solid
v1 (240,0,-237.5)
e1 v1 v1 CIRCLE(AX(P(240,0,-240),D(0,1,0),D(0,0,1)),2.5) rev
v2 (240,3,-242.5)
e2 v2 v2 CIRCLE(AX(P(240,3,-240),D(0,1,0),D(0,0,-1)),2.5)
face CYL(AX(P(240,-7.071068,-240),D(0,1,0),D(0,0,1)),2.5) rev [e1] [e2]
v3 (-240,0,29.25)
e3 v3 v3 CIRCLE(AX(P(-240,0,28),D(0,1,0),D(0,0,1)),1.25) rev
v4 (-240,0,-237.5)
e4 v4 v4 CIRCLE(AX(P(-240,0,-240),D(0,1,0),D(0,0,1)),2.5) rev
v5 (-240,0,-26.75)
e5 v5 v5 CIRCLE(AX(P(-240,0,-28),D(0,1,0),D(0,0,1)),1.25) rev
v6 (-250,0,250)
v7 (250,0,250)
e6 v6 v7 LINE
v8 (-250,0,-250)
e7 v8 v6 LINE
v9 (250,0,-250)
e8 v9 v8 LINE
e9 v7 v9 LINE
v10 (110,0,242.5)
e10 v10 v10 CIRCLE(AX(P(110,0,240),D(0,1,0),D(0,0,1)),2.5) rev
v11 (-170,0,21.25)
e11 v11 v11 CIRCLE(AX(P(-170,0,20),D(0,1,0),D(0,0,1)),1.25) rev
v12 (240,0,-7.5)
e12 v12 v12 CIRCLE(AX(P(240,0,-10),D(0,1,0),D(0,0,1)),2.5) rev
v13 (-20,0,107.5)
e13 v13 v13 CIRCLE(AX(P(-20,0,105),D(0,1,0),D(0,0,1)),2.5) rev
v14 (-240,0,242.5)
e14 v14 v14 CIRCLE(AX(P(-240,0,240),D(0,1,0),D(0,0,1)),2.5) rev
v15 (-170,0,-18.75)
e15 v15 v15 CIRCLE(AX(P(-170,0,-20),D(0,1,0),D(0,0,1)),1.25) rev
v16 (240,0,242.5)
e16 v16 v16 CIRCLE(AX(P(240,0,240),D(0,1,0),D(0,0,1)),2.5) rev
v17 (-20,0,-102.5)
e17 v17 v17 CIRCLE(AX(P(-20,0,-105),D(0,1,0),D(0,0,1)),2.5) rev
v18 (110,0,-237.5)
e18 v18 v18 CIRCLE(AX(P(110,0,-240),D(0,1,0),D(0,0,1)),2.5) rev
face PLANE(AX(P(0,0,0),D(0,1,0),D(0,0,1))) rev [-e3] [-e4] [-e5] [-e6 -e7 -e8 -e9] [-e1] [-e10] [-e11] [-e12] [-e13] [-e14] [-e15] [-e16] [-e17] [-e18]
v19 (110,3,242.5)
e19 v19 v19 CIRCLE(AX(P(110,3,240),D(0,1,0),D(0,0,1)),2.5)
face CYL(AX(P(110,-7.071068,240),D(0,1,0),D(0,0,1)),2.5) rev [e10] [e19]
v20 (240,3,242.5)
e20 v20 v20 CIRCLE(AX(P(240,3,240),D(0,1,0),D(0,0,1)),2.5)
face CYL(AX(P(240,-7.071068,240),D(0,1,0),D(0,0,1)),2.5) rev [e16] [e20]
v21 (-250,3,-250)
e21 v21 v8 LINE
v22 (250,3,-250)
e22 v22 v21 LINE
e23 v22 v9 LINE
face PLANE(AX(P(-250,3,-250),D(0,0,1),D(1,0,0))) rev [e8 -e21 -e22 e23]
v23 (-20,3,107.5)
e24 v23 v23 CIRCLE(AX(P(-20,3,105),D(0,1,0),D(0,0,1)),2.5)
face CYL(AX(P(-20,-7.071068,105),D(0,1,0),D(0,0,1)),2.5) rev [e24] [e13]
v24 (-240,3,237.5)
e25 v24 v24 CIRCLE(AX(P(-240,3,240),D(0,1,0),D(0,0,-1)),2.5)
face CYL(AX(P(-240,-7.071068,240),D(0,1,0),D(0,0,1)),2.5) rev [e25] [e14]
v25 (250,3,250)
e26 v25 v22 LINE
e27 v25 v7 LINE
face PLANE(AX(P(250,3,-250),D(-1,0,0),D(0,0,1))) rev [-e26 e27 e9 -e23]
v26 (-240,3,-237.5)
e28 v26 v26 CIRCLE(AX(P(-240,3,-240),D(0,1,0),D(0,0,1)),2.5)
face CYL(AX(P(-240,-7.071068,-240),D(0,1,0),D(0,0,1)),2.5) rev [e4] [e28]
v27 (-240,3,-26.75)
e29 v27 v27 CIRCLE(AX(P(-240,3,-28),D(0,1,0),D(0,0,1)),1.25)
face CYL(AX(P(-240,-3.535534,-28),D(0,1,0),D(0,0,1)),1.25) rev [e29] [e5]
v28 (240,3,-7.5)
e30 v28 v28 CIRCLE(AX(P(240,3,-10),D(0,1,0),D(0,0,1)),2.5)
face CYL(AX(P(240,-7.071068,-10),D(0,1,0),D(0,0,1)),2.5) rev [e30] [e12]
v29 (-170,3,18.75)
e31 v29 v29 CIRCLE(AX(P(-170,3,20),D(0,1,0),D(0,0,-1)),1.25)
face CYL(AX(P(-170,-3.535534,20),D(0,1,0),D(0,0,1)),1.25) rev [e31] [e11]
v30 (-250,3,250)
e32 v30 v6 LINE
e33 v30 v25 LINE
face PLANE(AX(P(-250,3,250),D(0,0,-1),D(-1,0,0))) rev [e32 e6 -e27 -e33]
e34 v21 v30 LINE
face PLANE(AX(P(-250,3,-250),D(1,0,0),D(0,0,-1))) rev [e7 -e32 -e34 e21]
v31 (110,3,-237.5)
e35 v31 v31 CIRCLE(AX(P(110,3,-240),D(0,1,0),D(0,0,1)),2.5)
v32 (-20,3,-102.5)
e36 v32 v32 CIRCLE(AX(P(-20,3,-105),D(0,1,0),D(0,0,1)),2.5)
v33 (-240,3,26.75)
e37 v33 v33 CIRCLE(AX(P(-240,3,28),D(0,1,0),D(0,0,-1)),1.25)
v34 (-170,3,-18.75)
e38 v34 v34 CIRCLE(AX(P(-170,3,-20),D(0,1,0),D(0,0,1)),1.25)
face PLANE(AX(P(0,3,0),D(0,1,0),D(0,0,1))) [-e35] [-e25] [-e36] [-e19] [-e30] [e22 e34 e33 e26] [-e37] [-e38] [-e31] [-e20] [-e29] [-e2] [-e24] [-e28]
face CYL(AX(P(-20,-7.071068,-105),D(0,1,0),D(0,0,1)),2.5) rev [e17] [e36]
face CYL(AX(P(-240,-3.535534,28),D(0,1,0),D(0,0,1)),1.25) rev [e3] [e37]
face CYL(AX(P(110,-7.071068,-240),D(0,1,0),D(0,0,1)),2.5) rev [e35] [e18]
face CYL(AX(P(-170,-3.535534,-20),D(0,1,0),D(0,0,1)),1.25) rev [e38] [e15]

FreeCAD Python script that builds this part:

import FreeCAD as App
import Part
import Sketcher
from FreeCAD import Vector
Q = App.Units.Quantity

doc = App.newDocument("Part")
body = doc.addObject("PartDesign::Body", "Body")

sketch1 = body.newObject("Sketcher::SketchObject", "Sketch")
sketch1.AttachmentSupport = (doc.getObject("XZ_Plane"), [""])
sketch1.MapMode = "FlatFace"
sketch1.addGeometry(Part.LineSegment(Vector(-250, -250, 0), Vector(-250, 250, 0)), False)
sketch1.addGeometry(Part.LineSegment(Vector(-250, 250, 0), Vector(250, 250, 0)), False)
sketch1.addGeometry(Part.LineSegment(Vector(250, 250, 0), Vector(250, -250, 0)), False)
sketch1.addGeometry(Part.LineSegment(Vector(250, -250, 0), Vector(-250, -250, 0)), False)
sketch1.addConstraint(Sketcher.Constraint("Coincident", 0, 2, 1, 1))
sketch1.addConstraint(Sketcher.Constraint("Coincident", 1, 2, 2, 1))
sketch1.addConstraint(Sketcher.Constraint("Coincident", 2, 2, 3, 1))
sketch1.addConstraint(Sketcher.Constraint("Coincident", 3, 2, 0, 1))
sketch1.addConstraint(Sketcher.Constraint("Vertical", 0))
sketch1.addConstraint(Sketcher.Constraint("Horizontal", 1))
sketch1.addConstraint(Sketcher.Constraint("Vertical", 2))
sketch1.addConstraint(Sketcher.Constraint("Horizontal", 3))
sketch1.addConstraint(Sketcher.Constraint("Symmetric", 0, 2, 2, 2, -1, 1))
sketch1.addConstraint(Sketcher.Constraint("Equal", 3, 0))
sketch1.addConstraint(Sketcher.Constraint("DistanceX", 1, 1, 1, 2, Q("500 mm")))
pad1 = body.newObject("PartDesign::Pad", "Pad")
pad1.Profile = sketch1
pad1.Length = 3
pad1.Reversed = True

sketch2 = body.newObject("Sketcher::SketchObject", "Sketch001")
sketch2.AttachmentSupport = (doc.getObject("XZ_Plane"), [""])
sketch2.MapMode = "FlatFace"
sketch2.AttachmentOffset = App.Placement(Vector(0, 0, -3), App.Rotation())
sketch2.addGeometry(Part.Circle(Vector(-240, -240, 0), Vector(0, 0, 1), 2.5), False)
sketch2.addGeometry(Part.Circle(Vector(240, -240, 0), Vector(0, 0, 1), 2.5), False)
sketch2.addGeometry(Part.Circle(Vector(240, 240, 0), Vector(0, 0, 1), 2.5), False)
sketch2.addGeometry(Part.Circle(Vector(-240, 240, 0), Vector(0, 0, 1), 2.5), False)
sketch2.addConstraint(Sketcher.Constraint("Equal", 0, 1))
sketch2.addConstraint(Sketcher.Constraint("Equal", 1, 2))
sketch2.addConstraint(Sketcher.Constraint("Equal", 2, 3))
sketch2.addConstraint(Sketcher.Constraint("Symmetric", 0, 3, 2, 3, -1, 1))
sketch2.addConstraint(Sketcher.Constraint("Symmetric", 1, 3, 3, 3, -1, 1))
sketch2.addConstraint(Sketcher.Constraint("Symmetric", 0, 3, 1, 3, -2))
sketch2.addConstraint(Sketcher.Constraint("Diameter", 0, Q("5 mm")))
sketch2.addConstraint(Sketcher.Constraint("DistanceX", 0, 3, -1, 1, Q("240 mm")))
sketch2.addConstraint(Sketcher.Constraint("DistanceY", 0, 3, -1, 1, Q("240 mm")))
pocket1 = body.newObject("PartDesign::Pocket", "Pocket")
pocket1.Profile = sketch2
pocket1.Length = 3
pocket1.Reversed = True

sketch3 = body.newObject("Sketcher::SketchObject", "Sketch002")
sketch3.AttachmentSupport = (doc.getObject("XZ_Plane"), [""])
sketch3.MapMode = "FlatFace"
sketch3.AttachmentOffset = App.Placement(Vector(0, 0, -3), App.Rotation())
sketch3.addGeometry(Part.Circle(Vector(-240, -28, 0), Vector(0, 0, 1), 1.2), False)
sketch3.addGeometry(Part.Circle(Vector(-170, -20, 0), Vector(0, 0, 1), 1.2), False)
sketch3.addGeometry(Part.Circle(Vector(-170, 20, 0), Vector(0, 0, 1), 1.2), False)
sketch3.addGeometry(Part.Circle(Vector(-240, 28, 0), Vector(0, 0, 1), 1.2), False)
sketch3.addConstraint(Sketcher.Constraint("Equal", 0, 1))
sketch3.addConstraint(Sketcher.Constraint("Equal", 1, 2))
sketch3.addConstraint(Sketcher.Constraint("Equal", 2, 3))
sketch3.addConstraint(Sketcher.Constraint("Symmetric", 1, 3, 2, 3, -1))
sketch3.addConstraint(Sketcher.Constraint("Symmetric", 0, 3, 3, 3, -1))
sketch3.addConstraint(Sketcher.Constraint("Diameter", 0, Q("2.5 mm")))
sketch3.addConstraint(Sketcher.Constraint("DistanceX", 0, 3, -1, 1, Q("240 mm")))
sketch3.addConstraint(Sketcher.Constraint("DistanceY", 0, 3, -1, 1, Q("28 mm")))
sketch3.addConstraint(Sketcher.Constraint("DistanceX", 1, 3, -1, 1, Q("170 mm")))
sketch3.addConstraint(Sketcher.Constraint("DistanceY", 1, 3, -1, 1, Q("20 mm")))
pocket2 = body.newObject("PartDesign::Pocket", "Pocket001")
pocket2.Profile = sketch3
pocket2.Length = 3
pocket2.Reversed = True

sketch4 = body.newObject("Sketcher::SketchObject", "Sketch003")
sketch4.AttachmentSupport = (doc.getObject("XZ_Plane"), [""])
sketch4.MapMode = "FlatFace"
sketch4.AttachmentOffset = App.Placement(Vector(0, 0, -3), App.Rotation())
sketch4.addGeometry(Part.Circle(Vector(240, -10, 0), Vector(0, 0, 1), 2.5), False)
sketch4.addGeometry(Part.Circle(Vector(110, -240, 0), Vector(0, 0, 1), 2.5), False)
sketch4.addGeometry(Part.Circle(Vector(110, 240, 0), Vector(0, 0, 1), 2.5), False)
sketch4.addConstraint(Sketcher.Constraint("Equal", 0, 1))
sketch4.addConstraint(Sketcher.Constraint("Equal", 1, 2))
sketch4.addConstraint(Sketcher.Constraint("Symmetric", 1, 3, 2, 3, -1))
sketch4.addConstraint(Sketcher.Constraint("Diameter", 0, Q("5 mm")))
sketch4.addConstraint(Sketcher.Constraint("DistanceX", -1, 1, 0, 3, Q("240 mm")))
sketch4.addConstraint(Sketcher.Constraint("DistanceY", 0, 3, -1, 1, Q("10 mm")))
sketch4.addConstraint(Sketcher.Constraint("DistanceX", -1, 1, 1, 3, Q("110 mm")))
sketch4.addConstraint(Sketcher.Constraint("DistanceY", 1, 3, -1, 1, Q("240 mm")))
pocket3 = body.newObject("PartDesign::Pocket", "Pocket002")
pocket3.Profile = sketch4
pocket3.Length = 3
pocket3.Reversed = True

sketch5 = body.newObject("Sketcher::SketchObject", "Sketch004")
sketch5.AttachmentSupport = (doc.getObject("XZ_Plane"), [""])
sketch5.MapMode = "FlatFace"
sketch5.AttachmentOffset = App.Placement(Vector(0, 0, -3), App.Rotation())
sketch5.addGeometry(Part.Circle(Vector(-20, -105, 0), Vector(0, 0, 1), 2.5), False)
sketch5.addGeometry(Part.Circle(Vector(-20, 105, 0), Vector(0, 0, 1), 2.5), False)
sketch5.addConstraint(Sketcher.Constraint("Equal", 0, 1))
sketch5.addConstraint(Sketcher.Constraint("Symmetric", 0, 3, 1, 3, -1))
sketch5.addConstraint(Sketcher.Constraint("Diameter", 0, Q("5 mm")))
sketch5.addConstraint(Sketcher.Constraint("DistanceX", 0, 3, -1, 1, Q("20 mm")))
sketch5.addConstraint(Sketcher.Constraint("DistanceY", 0, 3, -1, 1, Q("105 mm")))
pocket4 = body.newObject("PartDesign::Pocket", "Pocket003")
pocket4.Profile = sketch5
pocket4.Length = 3
pocket4.Reversed = True

doc.recompute()
